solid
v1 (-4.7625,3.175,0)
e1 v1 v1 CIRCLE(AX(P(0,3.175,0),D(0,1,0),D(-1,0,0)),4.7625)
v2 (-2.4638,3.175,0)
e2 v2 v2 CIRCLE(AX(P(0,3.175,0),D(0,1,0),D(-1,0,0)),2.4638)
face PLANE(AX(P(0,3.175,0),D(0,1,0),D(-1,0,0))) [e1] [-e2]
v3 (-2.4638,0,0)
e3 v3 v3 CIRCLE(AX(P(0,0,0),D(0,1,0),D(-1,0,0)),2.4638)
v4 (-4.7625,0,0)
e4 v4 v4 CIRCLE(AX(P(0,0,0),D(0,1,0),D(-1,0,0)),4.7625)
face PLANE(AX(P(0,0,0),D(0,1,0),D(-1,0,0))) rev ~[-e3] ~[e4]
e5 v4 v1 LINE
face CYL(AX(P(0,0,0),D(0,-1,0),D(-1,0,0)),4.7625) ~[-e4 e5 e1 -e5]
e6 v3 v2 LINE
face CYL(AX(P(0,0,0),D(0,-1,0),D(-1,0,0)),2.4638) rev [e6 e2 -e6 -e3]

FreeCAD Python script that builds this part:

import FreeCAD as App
import Part
import Sketcher
Q = App.Units.Quantity

doc = App.newDocument("Part")
body = doc.addObject("PartDesign::Body", "Body")

# Sketch on XZ plane
sketch1 = body.newObject("Sketcher::SketchObject", "Sketch")
sketch1.AttachmentSupport = (doc.getObject("XZ_Plane"), [""])
sketch1.MapMode = "FlatFace"
sketch1.addGeometry(Part.Circle(App.Vector(0, 0, 0), App.Vector(0, 0, 1), 4.8), False)
sketch1.addGeometry(Part.Circle(App.Vector(0, 0, 0), App.Vector(0, 0, 1), 2.5), False)
sketch1.addConstraint(Sketcher.Constraint("Coincident", 0, 3, -1, 1))
sketch1.addConstraint(Sketcher.Constraint("Coincident", 1, 3, -1, 1))
sketch1.addConstraint(Sketcher.Constraint("Diameter", 0, Q("0.375 in")))
sketch1.addConstraint(Sketcher.Constraint("Diameter", 1, Q("0.194 in")))
pad1 = body.newObject("PartDesign::Pad", "Pad")
pad1.Profile = sketch1
pad1.Length = Q("0.125 in")
pad1.Reversed = True

doc.recompute()
